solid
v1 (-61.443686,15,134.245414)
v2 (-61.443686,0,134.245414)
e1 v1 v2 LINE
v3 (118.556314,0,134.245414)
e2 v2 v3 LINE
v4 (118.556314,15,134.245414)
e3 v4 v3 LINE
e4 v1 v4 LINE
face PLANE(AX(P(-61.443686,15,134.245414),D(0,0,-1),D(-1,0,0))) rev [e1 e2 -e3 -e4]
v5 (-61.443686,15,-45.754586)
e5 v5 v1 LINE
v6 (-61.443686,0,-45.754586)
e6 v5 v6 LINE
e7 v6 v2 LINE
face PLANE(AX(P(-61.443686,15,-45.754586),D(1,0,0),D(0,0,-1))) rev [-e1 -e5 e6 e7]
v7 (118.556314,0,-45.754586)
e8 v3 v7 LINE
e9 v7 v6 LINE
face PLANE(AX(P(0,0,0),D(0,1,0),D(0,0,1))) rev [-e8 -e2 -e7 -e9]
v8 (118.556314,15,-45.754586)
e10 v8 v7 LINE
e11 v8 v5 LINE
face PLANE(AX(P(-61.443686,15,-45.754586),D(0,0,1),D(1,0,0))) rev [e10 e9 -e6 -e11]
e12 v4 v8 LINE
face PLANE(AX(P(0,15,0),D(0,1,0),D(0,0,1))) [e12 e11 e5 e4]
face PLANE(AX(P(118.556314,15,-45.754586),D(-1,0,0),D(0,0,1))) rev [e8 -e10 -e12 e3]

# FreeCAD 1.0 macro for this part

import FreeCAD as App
import Part
import Sketcher

V = App.Vector
Q = App.Units.Quantity


def add_polygon(sketch, points):
    """Adds a closed chain of lines whose ends are joined by coincident constraints."""
    first, n = sketch.GeometryCount, len(points)
    for a, b in zip(points, points[1:] + points[:1]):
        sketch.addGeometry(Part.LineSegment(App.Vector(*a, 0), App.Vector(*b, 0)), False)
    for i in range(n):
        sketch.addConstraint(Sketcher.Constraint("Coincident", first + i, 2, first + (i + 1) % n, 1))

doc = App.newDocument("Part")
body = doc.addObject("PartDesign::Body", "Body")

# Sketch on XZ plane
sketch1 = body.newObject("Sketcher::SketchObject", "Sketch")
sketch1.AttachmentSupport = (doc.getObject("XZ_Plane"), [""])
sketch1.MapMode = "FlatFace"
add_polygon(sketch1, [(-61.443686, -45.754586), (-61.443686, 134.245414), (118.556314, 134.245414), (118.556314, -45.754586)])  # lines 0-3
sketch1.addConstraint([
    Sketcher.Constraint("Vertical", 0),
    Sketcher.Constraint("Horizontal", 1),
    Sketcher.Constraint("Vertical", 2),
    Sketcher.Constraint("Horizontal", 3),
    Sketcher.Constraint("Equal", 3, 0),
    Sketcher.Constraint("DistanceX", 1, 1, 1, 2, Q("180 mm")),
    Sketcher.Constraint("DistanceX", 0, 2, -1, 1, Q("61.443686 mm")),
    Sketcher.Constraint("DistanceY", -1, 1, 0, 2, Q("134.245414 mm")),
])
pad1 = body.newObject("PartDesign::Pad", "Pad")
pad1.Profile = sketch1
pad1.Length = 15
pad1.Reversed = True

doc.recompute()
